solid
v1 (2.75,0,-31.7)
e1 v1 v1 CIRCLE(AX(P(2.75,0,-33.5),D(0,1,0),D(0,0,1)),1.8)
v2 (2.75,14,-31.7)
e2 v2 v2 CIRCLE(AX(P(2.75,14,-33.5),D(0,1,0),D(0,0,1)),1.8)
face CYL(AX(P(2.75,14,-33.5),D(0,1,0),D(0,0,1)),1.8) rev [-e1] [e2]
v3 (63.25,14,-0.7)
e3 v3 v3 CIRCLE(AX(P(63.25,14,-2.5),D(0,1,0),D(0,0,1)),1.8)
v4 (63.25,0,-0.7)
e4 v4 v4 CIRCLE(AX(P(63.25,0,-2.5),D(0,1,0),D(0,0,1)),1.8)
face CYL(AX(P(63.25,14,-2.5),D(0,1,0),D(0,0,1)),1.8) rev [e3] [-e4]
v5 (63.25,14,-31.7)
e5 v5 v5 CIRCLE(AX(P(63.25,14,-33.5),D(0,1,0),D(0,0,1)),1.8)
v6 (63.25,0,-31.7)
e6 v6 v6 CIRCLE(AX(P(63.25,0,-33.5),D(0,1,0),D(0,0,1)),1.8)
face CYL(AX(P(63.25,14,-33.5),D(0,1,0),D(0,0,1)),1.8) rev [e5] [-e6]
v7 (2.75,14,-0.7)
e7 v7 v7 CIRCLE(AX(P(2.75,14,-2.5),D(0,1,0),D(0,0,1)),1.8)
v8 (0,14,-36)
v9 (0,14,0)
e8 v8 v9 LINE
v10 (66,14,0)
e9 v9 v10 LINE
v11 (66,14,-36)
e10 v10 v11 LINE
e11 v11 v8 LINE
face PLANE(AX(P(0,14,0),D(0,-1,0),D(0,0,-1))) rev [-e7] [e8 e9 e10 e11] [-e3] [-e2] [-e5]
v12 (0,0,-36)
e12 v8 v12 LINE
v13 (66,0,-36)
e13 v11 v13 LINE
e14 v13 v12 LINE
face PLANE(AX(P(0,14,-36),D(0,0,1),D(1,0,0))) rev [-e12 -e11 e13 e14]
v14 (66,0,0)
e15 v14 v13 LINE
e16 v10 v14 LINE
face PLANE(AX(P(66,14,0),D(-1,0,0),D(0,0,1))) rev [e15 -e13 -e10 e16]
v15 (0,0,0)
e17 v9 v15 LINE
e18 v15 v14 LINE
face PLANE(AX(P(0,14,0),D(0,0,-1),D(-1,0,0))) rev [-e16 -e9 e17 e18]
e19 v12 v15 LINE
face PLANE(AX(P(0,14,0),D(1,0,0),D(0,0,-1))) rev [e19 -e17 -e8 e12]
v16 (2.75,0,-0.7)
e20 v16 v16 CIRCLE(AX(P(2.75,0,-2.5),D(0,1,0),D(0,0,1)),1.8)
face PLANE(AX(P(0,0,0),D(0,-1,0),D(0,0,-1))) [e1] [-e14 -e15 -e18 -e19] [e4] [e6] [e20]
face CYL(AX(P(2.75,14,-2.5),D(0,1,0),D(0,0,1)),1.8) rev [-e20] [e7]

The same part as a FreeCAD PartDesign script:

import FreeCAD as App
import Part
import Sketcher

V = App.Vector

doc = App.newDocument("Part")
body = doc.addObject("PartDesign::Body", "Body")

sketch1 = body.newObject("Sketcher::SketchObject", "Sketch")
sketch1.AttachmentSupport = (doc.getObject("XZ_Plane"), [""])
sketch1.MapMode = "FlatFace"
sketch1.addGeometry(Part.LineSegment(V(0, -36, 0), V(0, 0, 0)), False)
sketch1.addGeometry(Part.LineSegment(V(0, 0, 0), V(66, 0, 0)), False)
sketch1.addGeometry(Part.LineSegment(V(66, 0, 0), V(66, -36, 0)), False)
sketch1.addGeometry(Part.LineSegment(V(66, -36, 0), V(0, -36, 0)), False)
sketch1.addConstraint(Sketcher.Constraint("Coincident", 0, 2, 1, 1))
sketch1.addConstraint(Sketcher.Constraint("Coincident", 1, 2, 2, 1))
sketch1.addConstraint(Sketcher.Constraint("Coincident", 2, 2, 3, 1))
sketch1.addConstraint(Sketcher.Constraint("Coincident", 3, 2, 0, 1))
sketch1.addConstraint(Sketcher.Constraint("Vertical", 0))
sketch1.addConstraint(Sketcher.Constraint("Horizontal", 1))
sketch1.addConstraint(Sketcher.Constraint("Vertical", 2))
sketch1.addConstraint(Sketcher.Constraint("Horizontal", 3))
sketch1.addConstraint(Sketcher.Constraint("Coincident", 0, 2, -1, 1))
sketch1.addConstraint(Sketcher.Constraint("DistanceX", 1, 1, 1, 2, 66.0))
sketch1.addConstraint(Sketcher.Constraint("DistanceY", 0, 1, 0, 2, 36.0))
pad1 = body.newObject("PartDesign::Pad", "Pad")
pad1.Profile = sketch1
pad1.Length = 14
pad1.Reversed = True

sketch2 = body.newObject("Sketcher::SketchObject", "Sketch001")
sketch2.AttachmentSupport = (doc.getObject("XZ_Plane"), [""])
sketch2.MapMode = "FlatFace"
sketch2.AttachmentOffset = App.Placement(V(0, 0, -14), App.Rotation())
sketch2.addGeometry(Part.Circle(V(63.2, -33.5, 0), V(0, 0, 1), 1.8), False)
sketch2.addGeometry(Part.Circle(V(63.2, -2.5, 0), V(0, 0, 1), 1.8), False)
sketch2.addGeometry(Part.Circle(V(2.8, -33.5, 0), V(0, 0, 1), 1.8), False)
sketch2.addGeometry(Part.Circle(V(2.8, -2.5, 0), V(0, 0, 1), 1.8), False)
sketch2.addConstraint(Sketcher.Constraint("Equal", 0, 1))
sketch2.addConstraint(Sketcher.Constraint("Equal", 1, 2))
sketch2.addConstraint(Sketcher.Constraint("Equal", 2, 3))
sketch2.addConstraint(Sketcher.Constraint("Horizontal", 0, 3, 2, 3))
sketch2.addConstraint(Sketcher.Constraint("Horizontal", 1, 3, 3, 3))
sketch2.addConstraint(Sketcher.Constraint("Vertical", 0, 3, 1, 3))
sketch2.addConstraint(Sketcher.Constraint("Vertical", 2, 3, 3, 3))
sketch2.addConstraint(Sketcher.Constraint("Diameter", 0, 3.6))
sketch2.addConstraint(Sketcher.Constraint("DistanceY", 0, 3, 1, 3, 31.0))
sketch2.addConstraint(Sketcher.Constraint("DistanceY", 0, 3, -1, 1, 33.5))
sketch2.addConstraint(Sketcher.Constraint("DistanceX", 2, 3, 0, 3, 60.5))
sketch2.addConstraint(Sketcher.Constraint("DistanceX", -1, 1, 0, 3, 63.25))
doc.recompute()
hole = body.newObject("PartDesign::Hole", "Hole")
hole.Profile = sketch2
hole.ThreadType = "None"
hole.Diameter = 3.6
hole.DepthType = "ThroughAll"
hole.Reversed = True

doc.recompute()
